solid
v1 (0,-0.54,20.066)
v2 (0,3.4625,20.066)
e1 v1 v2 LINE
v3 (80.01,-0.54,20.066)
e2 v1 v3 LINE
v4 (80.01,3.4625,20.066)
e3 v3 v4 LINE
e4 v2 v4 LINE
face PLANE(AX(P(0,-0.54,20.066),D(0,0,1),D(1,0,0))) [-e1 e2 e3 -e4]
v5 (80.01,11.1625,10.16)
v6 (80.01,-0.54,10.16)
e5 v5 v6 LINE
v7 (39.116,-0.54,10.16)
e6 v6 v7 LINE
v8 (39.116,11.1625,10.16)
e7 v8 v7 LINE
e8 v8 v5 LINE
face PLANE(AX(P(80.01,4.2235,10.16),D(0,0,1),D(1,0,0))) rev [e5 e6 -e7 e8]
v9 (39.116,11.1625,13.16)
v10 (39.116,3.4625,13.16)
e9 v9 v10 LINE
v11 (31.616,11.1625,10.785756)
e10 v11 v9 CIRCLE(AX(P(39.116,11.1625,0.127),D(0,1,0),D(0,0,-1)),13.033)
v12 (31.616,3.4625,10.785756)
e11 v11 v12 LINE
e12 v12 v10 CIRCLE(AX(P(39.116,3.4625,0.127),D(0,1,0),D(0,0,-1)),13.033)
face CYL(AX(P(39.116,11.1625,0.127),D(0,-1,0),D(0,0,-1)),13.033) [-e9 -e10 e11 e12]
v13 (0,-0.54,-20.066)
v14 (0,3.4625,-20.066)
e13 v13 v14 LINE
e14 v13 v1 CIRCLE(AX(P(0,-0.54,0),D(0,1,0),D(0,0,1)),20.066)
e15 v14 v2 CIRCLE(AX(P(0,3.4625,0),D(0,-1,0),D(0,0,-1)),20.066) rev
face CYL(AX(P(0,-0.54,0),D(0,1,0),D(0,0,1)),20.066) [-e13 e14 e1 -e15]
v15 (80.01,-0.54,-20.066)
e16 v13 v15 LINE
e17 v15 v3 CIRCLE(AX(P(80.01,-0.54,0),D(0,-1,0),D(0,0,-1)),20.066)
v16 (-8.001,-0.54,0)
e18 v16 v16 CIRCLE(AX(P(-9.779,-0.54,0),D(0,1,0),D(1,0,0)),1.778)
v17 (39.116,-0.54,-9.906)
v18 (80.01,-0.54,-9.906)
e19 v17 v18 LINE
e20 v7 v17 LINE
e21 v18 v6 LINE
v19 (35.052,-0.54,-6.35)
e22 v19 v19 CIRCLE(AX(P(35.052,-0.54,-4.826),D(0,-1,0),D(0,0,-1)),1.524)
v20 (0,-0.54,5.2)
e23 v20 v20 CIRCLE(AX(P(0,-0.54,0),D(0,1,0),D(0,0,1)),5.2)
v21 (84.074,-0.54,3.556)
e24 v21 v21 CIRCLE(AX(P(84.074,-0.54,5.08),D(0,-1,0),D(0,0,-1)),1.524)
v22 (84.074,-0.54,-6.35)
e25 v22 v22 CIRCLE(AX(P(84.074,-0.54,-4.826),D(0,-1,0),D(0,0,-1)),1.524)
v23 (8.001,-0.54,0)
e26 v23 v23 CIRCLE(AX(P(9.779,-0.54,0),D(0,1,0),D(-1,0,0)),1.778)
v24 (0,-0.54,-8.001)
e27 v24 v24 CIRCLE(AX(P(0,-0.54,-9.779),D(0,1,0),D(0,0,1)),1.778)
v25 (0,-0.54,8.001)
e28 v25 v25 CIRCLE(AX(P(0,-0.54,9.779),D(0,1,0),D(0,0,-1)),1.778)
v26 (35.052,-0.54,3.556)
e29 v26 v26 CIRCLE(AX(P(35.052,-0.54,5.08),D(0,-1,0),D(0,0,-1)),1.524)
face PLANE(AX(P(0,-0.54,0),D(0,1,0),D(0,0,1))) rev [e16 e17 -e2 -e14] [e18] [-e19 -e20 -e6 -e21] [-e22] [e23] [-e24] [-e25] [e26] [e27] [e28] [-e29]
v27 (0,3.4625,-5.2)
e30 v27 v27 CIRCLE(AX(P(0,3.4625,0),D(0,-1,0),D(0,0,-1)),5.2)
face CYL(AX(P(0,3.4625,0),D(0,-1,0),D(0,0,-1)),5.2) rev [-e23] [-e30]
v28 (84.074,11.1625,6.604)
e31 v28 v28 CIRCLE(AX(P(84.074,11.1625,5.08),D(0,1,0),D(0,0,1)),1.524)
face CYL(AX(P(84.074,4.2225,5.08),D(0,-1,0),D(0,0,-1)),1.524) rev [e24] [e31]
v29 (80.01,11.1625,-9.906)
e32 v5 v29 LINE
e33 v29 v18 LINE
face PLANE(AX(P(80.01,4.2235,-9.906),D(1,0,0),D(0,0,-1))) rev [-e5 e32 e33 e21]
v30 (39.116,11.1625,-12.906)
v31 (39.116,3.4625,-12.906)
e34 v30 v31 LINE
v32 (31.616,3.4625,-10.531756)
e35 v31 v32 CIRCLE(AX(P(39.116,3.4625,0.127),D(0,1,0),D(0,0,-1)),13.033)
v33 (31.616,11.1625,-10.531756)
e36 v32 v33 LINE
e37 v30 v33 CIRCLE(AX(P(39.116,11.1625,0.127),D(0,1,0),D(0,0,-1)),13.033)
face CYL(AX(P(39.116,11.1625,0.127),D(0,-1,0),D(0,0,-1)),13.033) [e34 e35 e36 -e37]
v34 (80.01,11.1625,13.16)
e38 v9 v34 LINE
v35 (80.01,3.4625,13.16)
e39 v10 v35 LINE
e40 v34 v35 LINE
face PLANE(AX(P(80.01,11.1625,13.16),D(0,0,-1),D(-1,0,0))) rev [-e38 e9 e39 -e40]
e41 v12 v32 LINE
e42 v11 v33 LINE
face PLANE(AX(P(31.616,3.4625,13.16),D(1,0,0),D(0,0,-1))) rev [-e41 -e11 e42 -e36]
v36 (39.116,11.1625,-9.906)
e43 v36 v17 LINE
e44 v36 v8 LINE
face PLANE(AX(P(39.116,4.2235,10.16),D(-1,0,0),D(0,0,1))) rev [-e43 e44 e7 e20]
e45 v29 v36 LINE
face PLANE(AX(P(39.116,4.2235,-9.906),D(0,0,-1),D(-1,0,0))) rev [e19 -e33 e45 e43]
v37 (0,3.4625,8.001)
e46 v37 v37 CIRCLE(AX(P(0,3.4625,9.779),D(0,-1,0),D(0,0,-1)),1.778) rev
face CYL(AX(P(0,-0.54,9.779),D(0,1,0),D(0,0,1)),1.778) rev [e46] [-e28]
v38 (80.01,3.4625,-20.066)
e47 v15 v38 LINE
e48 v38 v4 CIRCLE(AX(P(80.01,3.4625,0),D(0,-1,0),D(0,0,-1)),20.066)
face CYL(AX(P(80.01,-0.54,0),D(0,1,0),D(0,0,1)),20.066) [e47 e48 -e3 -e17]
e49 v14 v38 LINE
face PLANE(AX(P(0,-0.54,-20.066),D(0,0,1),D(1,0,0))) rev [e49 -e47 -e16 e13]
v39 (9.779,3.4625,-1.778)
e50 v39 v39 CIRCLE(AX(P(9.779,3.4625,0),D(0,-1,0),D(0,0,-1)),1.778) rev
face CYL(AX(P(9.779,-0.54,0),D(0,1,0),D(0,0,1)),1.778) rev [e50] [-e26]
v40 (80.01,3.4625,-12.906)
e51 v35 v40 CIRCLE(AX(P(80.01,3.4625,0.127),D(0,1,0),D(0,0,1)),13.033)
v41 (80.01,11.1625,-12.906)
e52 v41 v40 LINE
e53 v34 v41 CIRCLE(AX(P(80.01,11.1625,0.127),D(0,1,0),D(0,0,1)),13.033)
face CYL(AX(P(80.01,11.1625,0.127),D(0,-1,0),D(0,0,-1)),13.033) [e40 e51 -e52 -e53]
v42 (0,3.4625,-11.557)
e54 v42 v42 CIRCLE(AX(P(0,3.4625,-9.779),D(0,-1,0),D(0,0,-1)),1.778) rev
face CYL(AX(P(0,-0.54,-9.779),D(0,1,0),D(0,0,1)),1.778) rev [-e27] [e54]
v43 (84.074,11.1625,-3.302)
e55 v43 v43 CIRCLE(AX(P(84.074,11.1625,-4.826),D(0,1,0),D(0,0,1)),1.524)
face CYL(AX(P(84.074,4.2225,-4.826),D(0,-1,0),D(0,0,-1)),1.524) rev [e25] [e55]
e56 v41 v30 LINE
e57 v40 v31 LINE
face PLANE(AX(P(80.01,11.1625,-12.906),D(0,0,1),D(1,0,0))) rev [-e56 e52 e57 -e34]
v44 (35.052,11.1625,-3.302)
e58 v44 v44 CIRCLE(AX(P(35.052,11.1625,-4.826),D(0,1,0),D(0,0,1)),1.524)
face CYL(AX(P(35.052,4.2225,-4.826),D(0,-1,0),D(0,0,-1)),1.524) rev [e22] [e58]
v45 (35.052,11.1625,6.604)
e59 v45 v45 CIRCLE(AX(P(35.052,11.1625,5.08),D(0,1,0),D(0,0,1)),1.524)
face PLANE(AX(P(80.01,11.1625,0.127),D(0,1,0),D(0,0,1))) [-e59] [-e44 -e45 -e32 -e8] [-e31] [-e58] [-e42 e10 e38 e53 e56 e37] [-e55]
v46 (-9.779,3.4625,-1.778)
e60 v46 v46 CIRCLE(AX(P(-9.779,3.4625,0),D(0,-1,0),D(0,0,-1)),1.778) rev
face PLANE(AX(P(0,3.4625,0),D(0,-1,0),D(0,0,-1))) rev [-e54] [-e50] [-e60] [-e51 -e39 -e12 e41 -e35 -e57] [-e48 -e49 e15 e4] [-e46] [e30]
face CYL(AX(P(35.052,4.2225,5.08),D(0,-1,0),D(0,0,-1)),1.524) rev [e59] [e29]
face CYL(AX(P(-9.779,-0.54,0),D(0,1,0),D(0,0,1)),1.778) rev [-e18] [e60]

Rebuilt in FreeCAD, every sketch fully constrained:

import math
import FreeCAD as App
import Part
import Sketcher
Q = App.Units.Quantity

doc = App.newDocument("Part")
body = doc.addObject("PartDesign::Body", "Body")

# Sketch on XZ plane
sketch1 = doc.addObject("Sketcher::SketchObject", "Sketch")
body.addObject(sketch1)
sketch1.AttachmentSupport = (doc.XZ_Plane, [""])
sketch1.MapMode = "FlatFace"
sketch1.addGeometry(Part.LineSegment(App.Vector(-2.467436, -13.402194, 0), App.Vector(-4, -4, 0)), False)
sketch1.addGeometry(Part.LineSegment(App.Vector(-4, -4, 0), App.Vector(-12.448473, -2.459446, 0)), False)
sketch1.addGeometry(Part.ArcOfCircle(Part.Circle(App.Vector(-12, 0, 0), App.Vector(0, 0, 1), 2.5), math.radians(100.334179), math.radians(259.665821)), False)
sketch1.addGeometry(Part.LineSegment(App.Vector(-12.448473, 2.459446, 0), App.Vector(-4, 4, 0)), False)
sketch1.addGeometry(Part.LineSegment(App.Vector(-4, 4, 0), App.Vector(-2.467436, 13.402194, 0)), False)
sketch1.addGeometry(Part.ArcOfCircle(Part.Circle(App.Vector(0, 13, 0), App.Vector(0, 0, 1), 2.5), math.radians(9.257833), math.radians(170.742167)), False)
sketch1.addGeometry(Part.LineSegment(App.Vector(2.467436, 13.402194, 0), App.Vector(4, 4, 0)), False)
sketch1.addGeometry(Part.LineSegment(App.Vector(4, 4, 0), App.Vector(12.448473, 2.459446, 0)), False)
sketch1.addGeometry(Part.ArcOfCircle(Part.Circle(App.Vector(12, 0, 0), App.Vector(0, 0, 1), 2.5), math.radians(-79.665821), math.radians(79.665821)), False)
sketch1.addGeometry(Part.LineSegment(App.Vector(12.448473, -2.459446, 0), App.Vector(4, -4, 0)), False)
sketch1.addGeometry(Part.LineSegment(App.Vector(4, -4, 0), App.Vector(2.467436, -13.402194, 0)), False)
sketch1.addGeometry(Part.ArcOfCircle(Part.Circle(App.Vector(0, -13, 0), App.Vector(0, 0, 1), 2.5), math.radians(-170.742167), math.radians(-9.257833)), False)
sketch1.addGeometry(Part.Circle(App.Vector(0, 12, 0), App.Vector(0, 0, 1), 0.5), False)
sketch1.addGeometry(Part.Circle(App.Vector(0, 9.5, 0), App.Vector(0, 0, 1), 0.5), False)
sketch1.addGeometry(Part.Circle(App.Vector(0, 7.5, 0), App.Vector(0, 0, 1), 0.5), False)
sketch1.addGeometry(Part.Circle(App.Vector(12, 0, 0), App.Vector(0, 0, 1), 0.5), False)
sketch1.addGeometry(Part.Circle(App.Vector(9.5, 0, 0), App.Vector(0, 0, 1), 0.5), False)
sketch1.addGeometry(Part.Circle(App.Vector(7.5, 0, 0), App.Vector(0, 0, 1), 0.5), False)
sketch1.addGeometry(Part.Circle(App.Vector(0, 0, 0), App.Vector(0, 0, 1), 1.375), False)
sketch1.addGeometry(Part.Circle(App.Vector(-7.5, 0, 0), App.Vector(0, 0, 1), 0.5), False)
sketch1.addGeometry(Part.Circle(App.Vector(-9.5, 0, 0), App.Vector(0, 0, 1), 0.5), False)
sketch1.addGeometry(Part.Circle(App.Vector(-12, 0, 0), App.Vector(0, 0, 1), 0.5), False)
sketch1.addGeometry(Part.Circle(App.Vector(0, -7.5, 0), App.Vector(0, 0, 1), 0.5), False)
sketch1.addGeometry(Part.Circle(App.Vector(0, -9.5, 0), App.Vector(0, 0, 1), 0.5), False)
sketch1.addGeometry(Part.Circle(App.Vector(0, -12, 0), App.Vector(0, 0, 1), 0.5), False)
sketch1.addConstraint(Sketcher.Constraint("Coincident", 0, 2, 1, 1))
sketch1.addConstraint(Sketcher.Constraint("Tangent", 1, 2, 2, 2))
sketch1.addConstraint(Sketcher.Constraint("Tangent", 2, 1, 3, 1))
sketch1.addConstraint(Sketcher.Constraint("Coincident", 3, 2, 4, 1))
sketch1.addConstraint(Sketcher.Constraint("Tangent", 4, 2, 5, 2))
sketch1.addConstraint(Sketcher.Constraint("Tangent", 5, 1, 6, 1))
sketch1.addConstraint(Sketcher.Constraint("Coincident", 6, 2, 7, 1))
sketch1.addConstraint(Sketcher.Constraint("Tangent", 7, 2, 8, 2))
sketch1.addConstraint(Sketcher.Constraint("Tangent", 8, 1, 9, 1))
sketch1.addConstraint(Sketcher.Constraint("Coincident", 9, 2, 10, 1))
sketch1.addConstraint(Sketcher.Constraint("Tangent", 10, 2, 11, 2))
sketch1.addConstraint(Sketcher.Constraint("Tangent", 11, 1, 0, 1))
sketch1.addConstraint(Sketcher.Constraint("Coincident", 18, 3, -1, 1))
sketch1.addConstraint(Sketcher.Constraint("Coincident", 15, 3, 8, 3))
sketch1.addConstraint(Sketcher.Constraint("Coincident", 21, 3, 2, 3))
sketch1.addConstraint(Sketcher.Constraint("Equal", 2, 5))
sketch1.addConstraint(Sketcher.Constraint("Equal", 5, 8))
sketch1.addConstraint(Sketcher.Constraint("Equal", 8, 11))
sketch1.addConstraint(Sketcher.Constraint("Equal", 12, 13))
sketch1.addConstraint(Sketcher.Constraint("Equal", 13, 14))
sketch1.addConstraint(Sketcher.Constraint("Equal", 14, 15))
sketch1.addConstraint(Sketcher.Constraint("Equal", 15, 16))
sketch1.addConstraint(Sketcher.Constraint("Equal", 16, 17))
sketch1.addConstraint(Sketcher.Constraint("Equal", 17, 19))
sketch1.addConstraint(Sketcher.Constraint("Equal", 19, 20))
sketch1.addConstraint(Sketcher.Constraint("Equal", 20, 21))
sketch1.addConstraint(Sketcher.Constraint("Equal", 21, 22))
sketch1.addConstraint(Sketcher.Constraint("Equal", 22, 23))
sketch1.addConstraint(Sketcher.Constraint("Equal", 23, 24))
sketch1.addConstraint(Sketcher.Constraint("Symmetric", 2, 3, 8, 3, -1, 1))
sketch1.addConstraint(Sketcher.Constraint("Symmetric", 5, 3, 11, 3, -1, 1))
sketch1.addConstraint(Sketcher.Constraint("Symmetric", 17, 3, 19, 3, -1, 1))
sketch1.addConstraint(Sketcher.Constraint("Symmetric", 16, 3, 20, 3, -1, 1))
sketch1.addConstraint(Sketcher.Constraint("Symmetric", 14, 3, 22, 3, -1, 1))
sketch1.addConstraint(Sketcher.Constraint("Symmetric", 13, 3, 23, 3, -1, 1))
sketch1.addConstraint(Sketcher.Constraint("Symmetric", 12, 3, 24, 3, -1, 1))
sketch1.addConstraint(Sketcher.Constraint("Symmetric", 0, 2, 6, 2, -1, 1))
sketch1.addConstraint(Sketcher.Constraint("Symmetric", 3, 2, 9, 2, -1, 1))
sketch1.addConstraint(Sketcher.Constraint("Symmetric", 4, 2, 5, 1, -2))
sketch1.addConstraint(Sketcher.Constraint("Symmetric", 2, 1, 7, 2, -2))
sketch1.addConstraint(Sketcher.Constraint("PointOnObject", 12, 3, -2))
sketch1.addConstraint(Sketcher.Constraint("PointOnObject", 13, 3, -2))
sketch1.addConstraint(Sketcher.Constraint("PointOnObject", 14, 3, -2))
sketch1.addConstraint(Sketcher.Constraint("PointOnObject", 16, 3, -1))
sketch1.addConstraint(Sketcher.Constraint("PointOnObject", 17, 3, -1))
sketch1.addConstraint(Sketcher.Constraint("Diameter", 12, Q("1 mm")))
sketch1.addConstraint(Sketcher.Constraint("Diameter", 18, Q("2.75 mm")))
sketch1.addConstraint(Sketcher.Constraint("Radius", 2, Q("2.5 mm")))
sketch1.addConstraint(Sketcher.Constraint("DistanceX", 2, 3, -1, 1, Q("12 mm")))
sketch1.addConstraint(Sketcher.Constraint("DistanceY", -1, 1, 5, 3, Q("13 mm")))
sketch1.addConstraint(Sketcher.Constraint("DistanceY", -1, 1, 12, 3, Q("12 mm")))
sketch1.addConstraint(Sketcher.Constraint("DistanceY", -1, 1, 13, 3, Q("9.5 mm")))
sketch1.addConstraint(Sketcher.Constraint("DistanceY", -1, 1, 14, 3, Q("7.5 mm")))
sketch1.addConstraint(Sketcher.Constraint("DistanceX", -1, 1, 16, 3, Q("9.5 mm")))
sketch1.addConstraint(Sketcher.Constraint("DistanceX", -1, 1, 17, 3, Q("7.5 mm")))
sketch1.addConstraint(Sketcher.Constraint("DistanceX", 0, 2, -1, 1, Q("4 mm")))
sketch1.addConstraint(Sketcher.Constraint("DistanceY", 0, 2, -1, 1, Q("4 mm")))
pad1 = doc.addObject("PartDesign::Pad", "Pad")
body.addObject(pad1)
pad1.Profile = sketch1
pad1.Length = 2
pad1.Reversed = True

# Sketch on XZ plane
sketch2 = doc.addObject("Sketcher::SketchObject", "Sketch001")
body.addObject(sketch2)
sketch2.AttachmentSupport = (doc.XZ_Plane, [""])
sketch2.MapMode = "FlatFace"
sketch2.addGeometry(Part.Circle(App.Vector(0, 0, 0), App.Vector(0, 0, 1), 4.627004), False)
sketch2.addGeometry(Part.Circle(App.Vector(0, 0, 0), App.Vector(0, 0, 1), 2.627004), False)
sketch2.addConstraint(Sketcher.Constraint("Coincident", 0, 3, -1, 1))
sketch2.addConstraint(Sketcher.Constraint("Coincident", 1, 3, -1, 1))
sketch2.addConstraint(Sketcher.Constraint("Diameter", 0, Q("9.254007 mm")))
sketch2.addConstraint(Sketcher.Constraint("Diameter", 1, Q("5.254007 mm")))
pad2 = doc.addObject("PartDesign::Pad", "Pad001")
body.addObject(pad2)
pad2.Profile = sketch2
pad2.Length = 2.5

# Sketch on XZ plane
sketch3 = doc.addObject("Sketcher::SketchObject", "Sketch002")
body.addObject(sketch3)
sketch3.AttachmentSupport = (doc.XZ_Plane, [""])
sketch3.MapMode = "FlatFace"
sketch3.AttachmentOffset = App.Placement(App.Vector(0, 0, 2.5), App.Rotation())
sketch3.addGeometry(Part.LineSegment(App.Vector(0.28282, 2.611735, 0), App.Vector(0, 3.101594, 0)), False)
sketch3.addGeometry(Part.LineSegment(App.Vector(0, 3.101594, 0), App.Vector(-0.28282, 2.611735, 0)), False)
sketch3.addGeometry(Part.ArcOfCircle(Part.Circle(App.Vector(0, 0, 0), App.Vector(0, 0, 1), 2.627004), math.radians(96.180373), math.radians(101.819627)), False)
sketch3.addGeometry(Part.LineSegment(App.Vector(-0.538093, 2.571304, 0), App.Vector(-0.958445, 2.949791, 0)), False)
sketch3.addGeometry(Part.LineSegment(App.Vector(-0.958445, 2.949791, 0), App.Vector(-1.076048, 2.396512, 0)), False)
sketch3.addGeometry(Part.ArcOfCircle(Part.Circle(App.Vector(0, 0, 0), App.Vector(0, 0, 1), 2.627003), math.radians(114.180372), math.radians(119.819628)), False)
sketch3.addGeometry(Part.LineSegment(App.Vector(-1.306333, 2.279176, 0), App.Vector(-1.823071, 2.509242, 0)), False)
sketch3.addGeometry(Part.LineSegment(App.Vector(-1.823071, 2.509242, 0), App.Vector(-1.763946, 1.946701, 0)), False)
sketch3.addGeometry(Part.ArcOfCircle(Part.Circle(App.Vector(0, 0, 0), App.Vector(0, 0, 1), 2.627004), math.radians(132.180373), math.radians(137.819627)), False)
sketch3.addGeometry(Part.LineSegment(App.Vector(-1.946701, 1.763946, 0), App.Vector(-2.509242, 1.823071, 0)), False)
sketch3.addGeometry(Part.LineSegment(App.Vector(-2.509242, 1.823071, 0), App.Vector(-2.279176, 1.306333, 0)), False)
sketch3.addGeometry(Part.ArcOfCircle(Part.Circle(App.Vector(0, 0, 0), App.Vector(0, 0, 1), 2.627003), math.radians(150.180372), math.radians(155.819628)), False)
sketch3.addGeometry(Part.LineSegment(App.Vector(-2.396512, 1.076048, 0), App.Vector(-2.949791, 0.958445, 0)), False)
sketch3.addGeometry(Part.LineSegment(App.Vector(-2.949791, 0.958445, 0), App.Vector(-2.571304, 0.538093, 0)), False)
sketch3.addGeometry(Part.ArcOfCircle(Part.Circle(App.Vector(0, 0, 0), App.Vector(0, 0, 1), 2.627004), math.radians(168.180373), math.radians(173.819627)), False)
sketch3.addGeometry(Part.LineSegment(App.Vector(-2.611735, 0.28282, 0), App.Vector(-3.101594, 0, 0)), False)
sketch3.addGeometry(Part.LineSegment(App.Vector(-3.101594, 0, 0), App.Vector(-2.611735, -0.28282, 0)), False)
sketch3.addGeometry(Part.ArcOfCircle(Part.Circle(App.Vector(0, 0, 0), App.Vector(0, 0, 1), 2.627004), math.radians(-173.819627), math.radians(-168.180373)), False)
sketch3.addGeometry(Part.LineSegment(App.Vector(-2.571304, -0.538093, 0), App.Vector(-2.949791, -0.958445, 0)), False)
sketch3.addGeometry(Part.LineSegment(App.Vector(-2.949791, -0.958445, 0), App.Vector(-2.396512, -1.076048, 0)), False)
sketch3.addGeometry(Part.ArcOfCircle(Part.Circle(App.Vector(0, 0, 0), App.Vector(0, 0, 1), 2.627003), math.radians(-155.819628), math.radians(-150.180372)), False)
sketch3.addGeometry(Part.LineSegment(App.Vector(-2.279176, -1.306333, 0), App.Vector(-2.509242, -1.823071, 0)), False)
sketch3.addGeometry(Part.LineSegment(App.Vector(-2.509242, -1.823071, 0), App.Vector(-1.946701, -1.763946, 0)), False)
sketch3.addGeometry(Part.ArcOfCircle(Part.Circle(App.Vector(0, 0, 0), App.Vector(0, 0, 1), 2.627004), math.radians(-137.819627), math.radians(-132.180373)), False)
sketch3.addGeometry(Part.LineSegment(App.Vector(-1.763946, -1.946701, 0), App.Vector(-1.823071, -2.509242, 0)), False)
sketch3.addGeometry(Part.LineSegment(App.Vector(-1.823071, -2.509242, 0), App.Vector(-1.306333, -2.279176, 0)), False)
sketch3.addGeometry(Part.ArcOfCircle(Part.Circle(App.Vector(0, 0, 0), App.Vector(0, 0, 1), 2.627003), math.radians(-119.819628), math.radians(-114.180372)), False)
sketch3.addGeometry(Part.LineSegment(App.Vector(-1.076048, -2.396512, 0), App.Vector(-0.958445, -2.949791, 0)), False)
sketch3.addGeometry(Part.LineSegment(App.Vector(-0.958445, -2.949791, 0), App.Vector(-0.538093, -2.571304, 0)), False)
sketch3.addGeometry(Part.ArcOfCircle(Part.Circle(App.Vector(0, 0, 0), App.Vector(0, 0, 1), 2.627004), math.radians(-101.819627), math.radians(-96.180373)), False)
sketch3.addGeometry(Part.LineSegment(App.Vector(-0.28282, -2.611735, 0), App.Vector(0, -3.101594, 0)), False)
sketch3.addGeometry(Part.LineSegment(App.Vector(0, -3.101594, 0), App.Vector(0.28282, -2.611735, 0)), False)
sketch3.addGeometry(Part.ArcOfCircle(Part.Circle(App.Vector(0, 0, 0), App.Vector(0, 0, 1), 2.627004), math.radians(-83.819627), math.radians(-78.180373)), False)
sketch3.addGeometry(Part.LineSegment(App.Vector(0.538093, -2.571304, 0), App.Vector(0.958445, -2.949791, 0)), False)
sketch3.addGeometry(Part.LineSegment(App.Vector(0.958445, -2.949791, 0), App.Vector(1.076048, -2.396512, 0)), False)
sketch3.addGeometry(Part.ArcOfCircle(Part.Circle(App.Vector(0, 0, 0), App.Vector(0, 0, 1), 2.627003), math.radians(-65.819628), math.radians(-60.180372)), False)
sketch3.addGeometry(Part.LineSegment(App.Vector(1.306333, -2.279176, 0), App.Vector(1.823071, -2.509242, 0)), False)
sketch3.addGeometry(Part.LineSegment(App.Vector(1.823071, -2.509242, 0), App.Vector(1.763946, -1.946701, 0)), False)
sketch3.addGeometry(Part.ArcOfCircle(Part.Circle(App.Vector(0, 0, 0), App.Vector(0, 0, 1), 2.627004), math.radians(-47.819627), math.radians(-42.180373)), False)
sketch3.addGeometry(Part.LineSegment(App.Vector(1.946701, -1.763946, 0), App.Vector(2.509242, -1.823071, 0)), False)
sketch3.addGeometry(Part.LineSegment(App.Vector(2.509242, -1.823071, 0), App.Vector(2.279176, -1.306333, 0)), False)
sketch3.addGeometry(Part.ArcOfCircle(Part.Circle(App.Vector(0, 0, 0), App.Vector(0, 0, 1), 2.627003), math.radians(-29.819628), math.radians(-24.180372)), False)
sketch3.addGeometry(Part.LineSegment(App.Vector(2.396512, -1.076048, 0), App.Vector(2.949791, -0.958445, 0)), False)
sketch3.addGeometry(Part.LineSegment(App.Vector(2.949791, -0.958445, 0), App.Vector(2.571304, -0.538093, 0)), False)
sketch3.addGeometry(Part.ArcOfCircle(Part.Circle(App.Vector(0, 0, 0), App.Vector(0, 0, 1), 2.627004), math.radians(-11.819627), math.radians(-6.180373)), False)
sketch3.addGeometry(Part.LineSegment(App.Vector(2.611735, -0.28282, 0), App.Vector(3.101594, 0, 0)), False)
sketch3.addGeometry(Part.LineSegment(App.Vector(3.101594, 0, 0), App.Vector(2.611735, 0.28282, 0)), False)
sketch3.addGeometry(Part.ArcOfCircle(Part.Circle(App.Vector(0, 0, 0), App.Vector(0, 0, 1), 2.627004), math.radians(6.180373), math.radians(11.819627)), False)
sketch3.addGeometry(Part.LineSegment(App.Vector(2.571304, 0.538093, 0), App.Vector(2.949791, 0.958445, 0)), False)
sketch3.addGeometry(Part.LineSegment(App.Vector(2.949791, 0.958445, 0), App.Vector(2.396512, 1.076048, 0)), False)
sketch3.addGeometry(Part.ArcOfCircle(Part.Circle(App.Vector(0, 0, 0), App.Vector(0, 0, 1), 2.627003), math.radians(24.180372), math.radians(29.819628)), False)
sketch3.addGeometry(Part.LineSegment(App.Vector(2.279176, 1.306333, 0), App.Vector(2.509242, 1.823071, 0)), False)
sketch3.addGeometry(Part.LineSegment(App.Vector(2.509242, 1.823071, 0), App.Vector(1.946701, 1.763946, 0)), False)
sketch3.addGeometry(Part.ArcOfCircle(Part.Circle(App.Vector(0, 0, 0), App.Vector(0, 0, 1), 2.627004), math.radians(42.180373), math.radians(47.819627)), False)
sketch3.addGeometry(Part.LineSegment(App.Vector(1.763946, 1.946701, 0), App.Vector(1.823071, 2.509242, 0)), False)
sketch3.addGeometry(Part.LineSegment(App.Vector(1.823071, 2.509242, 0), App.Vector(1.306333, 2.279176, 0)), False)
sketch3.addGeometry(Part.ArcOfCircle(Part.Circle(App.Vector(0, 0, 0), App.Vector(0, 0, 1), 2.627003), math.radians(60.180372), math.radians(65.819628)), False)
sketch3.addGeometry(Part.LineSegment(App.Vector(1.076048, 2.396512, 0), App.Vector(0.958445, 2.949791, 0)), False)
sketch3.addGeometry(Part.LineSegment(App.Vector(0.958445, 2.949791, 0), App.Vector(0.538093, 2.571304, 0)), False)
sketch3.addGeometry(Part.ArcOfCircle(Part.Circle(App.Vector(0, 0, 0), App.Vector(0, 0, 1), 2.627004), math.radians(78.180373), math.radians(83.819627)), False)
sketch3.addConstraint(Sketcher.Constraint("Coincident", 0, 2, 1, 1))
sketch3.addConstraint(Sketcher.Constraint("Coincident", 1, 2, 2, 1))
sketch3.addConstraint(Sketcher.Constraint("Coincident", 2, 2, 3, 1))
sketch3.addConstraint(Sketcher.Constraint("Coincident", 3, 2, 4, 1))
sketch3.addConstraint(Sketcher.Constraint("Coincident", 4, 2, 5, 1))
sketch3.addConstraint(Sketcher.Constraint("Coincident", 5, 2, 6, 1))
sketch3.addConstraint(Sketcher.Constraint("Coincident", 6, 2, 7, 1))
sketch3.addConstraint(Sketcher.Constraint("Coincident", 7, 2, 8, 1))
sketch3.addConstraint(Sketcher.Constraint("Coincident", 8, 2, 9, 1))
sketch3.addConstraint(Sketcher.Constraint("Coincident", 9, 2, 10, 1))
sketch3.addConstraint(Sketcher.Constraint("Coincident", 10, 2, 11, 1))
sketch3.addConstraint(Sketcher.Constraint("Coincident", 11, 2, 12, 1))
sketch3.addConstraint(Sketcher.Constraint("Coincident", 12, 2, 13, 1))
sketch3.addConstraint(Sketcher.Constraint("Coincident", 13, 2, 14, 1))
sketch3.addConstraint(Sketcher.Constraint("Coincident", 14, 2, 15, 1))
sketch3.addConstraint(Sketcher.Constraint("Coincident", 15, 2, 16, 1))
sketch3.addConstraint(Sketcher.Constraint("Coincident", 16, 2, 17, 1))
sketch3.addConstraint(Sketcher.Constraint("Coincident", 17, 2, 18, 1))
sketch3.addConstraint(Sketcher.Constraint("Coincident", 18, 2, 19, 1))
sketch3.addConstraint(Sketcher.Constraint("Coincident", 19, 2, 20, 1))
sketch3.addConstraint(Sketcher.Constraint("Coincident", 20, 2, 21, 1))
sketch3.addConstraint(Sketcher.Constraint("Coincident", 21, 2, 22, 1))
sketch3.addConstraint(Sketcher.Constraint("Coincident", 22, 2, 23, 1))
sketch3.addConstraint(Sketcher.Constraint("Coincident", 23, 2, 24, 1))
sketch3.addConstraint(Sketcher.Constraint("Coincident", 24, 2, 25, 1))
sketch3.addConstraint(Sketcher.Constraint("Coincident", 25, 2, 26, 1))
sketch3.addConstraint(Sketcher.Constraint("Coincident", 26, 2, 27, 1))
sketch3.addConstraint(Sketcher.Constraint("Coincident", 27, 2, 28, 1))
sketch3.addConstraint(Sketcher.Constraint("Coincident", 28, 2, 29, 1))
sketch3.addConstraint(Sketcher.Constraint("Coincident", 29, 2, 30, 1))
sketch3.addConstraint(Sketcher.Constraint("Coincident", 30, 2, 31, 1))
sketch3.addConstraint(Sketcher.Constraint("Coincident", 31, 2, 32, 1))
sketch3.addConstraint(Sketcher.Constraint("Coincident", 32, 2, 33, 1))
sketch3.addConstraint(Sketcher.Constraint("Coincident", 33, 2, 34, 1))
sketch3.addConstraint(Sketcher.Constraint("Coincident", 34, 2, 35, 1))
sketch3.addConstraint(Sketcher.Constraint("Coincident", 35, 2, 36, 1))
sketch3.addConstraint(Sketcher.Constraint("Coincident", 36, 2, 37, 1))
sketch3.addConstraint(Sketcher.Constraint("Coincident", 37, 2, 38, 1))
sketch3.addConstraint(Sketcher.Constraint("Coincident", 38, 2, 39, 1))
sketch3.addConstraint(Sketcher.Constraint("Coincident", 39, 2, 40, 1))
sketch3.addConstraint(Sketcher.Constraint("Coincident", 40, 2, 41, 1))
sketch3.addConstraint(Sketcher.Constraint("Coincident", 41, 2, 42, 1))
sketch3.addConstraint(Sketcher.Constraint("Coincident", 42, 2, 43, 1))
sketch3.addConstraint(Sketcher.Constraint("Coincident", 43, 2, 44, 1))
sketch3.addConstraint(Sketcher.Constraint("Coincident", 44, 2, 45, 1))
sketch3.addConstraint(Sketcher.Constraint("Coincident", 45, 2, 46, 1))
sketch3.addConstraint(Sketcher.Constraint("Coincident", 46, 2, 47, 1))
sketch3.addConstraint(Sketcher.Constraint("Coincident", 47, 2, 48, 1))
sketch3.addConstraint(Sketcher.Constraint("Coincident", 48, 2, 49, 1))
sketch3.addConstraint(Sketcher.Constraint("Coincident", 49, 2, 50, 1))
sketch3.addConstraint(Sketcher.Constraint("Coincident", 50, 2, 51, 1))
sketch3.addConstraint(Sketcher.Constraint("Coincident", 51, 2, 52, 1))
sketch3.addConstraint(Sketcher.Constraint("Coincident", 52, 2, 53, 1))
sketch3.addConstraint(Sketcher.Constraint("Coincident", 53, 2, 54, 1))
sketch3.addConstraint(Sketcher.Constraint("Coincident", 54, 2, 55, 1))
sketch3.addConstraint(Sketcher.Constraint("Coincident", 55, 2, 56, 1))
sketch3.addConstraint(Sketcher.Constraint("Coincident", 56, 2, 57, 1))
sketch3.addConstraint(Sketcher.Constraint("Coincident", 57, 2, 58, 1))
sketch3.addConstraint(Sketcher.Constraint("Coincident", 58, 2, 59, 1))
sketch3.addConstraint(Sketcher.Constraint("Coincident", 59, 2, 0, 1))
sketch3.addConstraint(Sketcher.Constraint("Coincident", 2, 3, -1, 1))
sketch3.addConstraint(Sketcher.Constraint("Coincident", 5, 3, -1, 1))
sketch3.addConstraint(Sketcher.Constraint("Coincident", 8, 3, -1, 1))
sketch3.addConstraint(Sketcher.Constraint("Coincident", 11, 3, -1, 1))
sketch3.addConstraint(Sketcher.Constraint("Coincident", 14, 3, -1, 1))
sketch3.addConstraint(Sketcher.Constraint("Coincident", 17, 3, -1, 1))
sketch3.addConstraint(Sketcher.Constraint("Coincident", 20, 3, -1, 1))
sketch3.addConstraint(Sketcher.Constraint("Coincident", 23, 3, -1, 1))
sketch3.addConstraint(Sketcher.Constraint("Coincident", 26, 3, -1, 1))
sketch3.addConstraint(Sketcher.Constraint("Coincident", 29, 3, -1, 1))
sketch3.addConstraint(Sketcher.Constraint("Coincident", 32, 3, -1, 1))
sketch3.addConstraint(Sketcher.Constraint("Coincident", 35, 3, -1, 1))
sketch3.addConstraint(Sketcher.Constraint("Coincident", 38, 3, -1, 1))
sketch3.addConstraint(Sketcher.Constraint("Coincident", 41, 3, -1, 1))
sketch3.addConstraint(Sketcher.Constraint("Coincident", 44, 3, -1, 1))
sketch3.addConstraint(Sketcher.Constraint("Coincident", 47, 3, -1, 1))
sketch3.addConstraint(Sketcher.Constraint("Coincident", 50, 3, -1, 1))
sketch3.addConstraint(Sketcher.Constraint("Coincident", 53, 3, -1, 1))
sketch3.addConstraint(Sketcher.Constraint("Coincident", 56, 3, -1, 1))
sketch3.addConstraint(Sketcher.Constraint("Coincident", 59, 3, -1, 1))
sketch3.addConstraint(Sketcher.Constraint("Equal", 2, 5))
sketch3.addConstraint(Sketcher.Constraint("Equal", 5, 8))
sketch3.addConstraint(Sketcher.Constraint("Equal", 8, 11))
sketch3.addConstraint(Sketcher.Constraint("Equal", 11, 14))
sketch3.addConstraint(Sketcher.Constraint("Equal", 14, 17))
sketch3.addConstraint(Sketcher.Constraint("Equal", 17, 20))
sketch3.addConstraint(Sketcher.Constraint("Equal", 20, 23))
sketch3.addConstraint(Sketcher.Constraint("Equal", 23, 26))
sketch3.addConstraint(Sketcher.Constraint("Equal", 26, 29))
sketch3.addConstraint(Sketcher.Constraint("Equal", 29, 32))
sketch3.addConstraint(Sketcher.Constraint("Equal", 32, 35))
sketch3.addConstraint(Sketcher.Constraint("Equal", 35, 38))
sketch3.addConstraint(Sketcher.Constraint("Equal", 38, 41))
sketch3.addConstraint(Sketcher.Constraint("Equal", 41, 44))
sketch3.addConstraint(Sketcher.Constraint("Equal", 44, 47))
sketch3.addConstraint(Sketcher.Constraint("Equal", 47, 50))
sketch3.addConstraint(Sketcher.Constraint("Equal", 50, 53))
sketch3.addConstraint(Sketcher.Constraint("Equal", 53, 56))
sketch3.addConstraint(Sketcher.Constraint("Equal", 56, 59))
sketch3.addConstraint(Sketcher.Constraint("Symmetric", 0, 2, 30, 2, -1, 1))
sketch3.addConstraint(Sketcher.Constraint("Symmetric", 3, 2, 33, 2, -1, 1))
sketch3.addConstraint(Sketcher.Constraint("Symmetric", 6, 2, 36, 2, -1, 1))
sketch3.addConstraint(Sketcher.Constraint("Symmetric", 9, 2, 39, 2, -1, 1))
sketch3.addConstraint(Sketcher.Constraint("Symmetric", 12, 2, 42, 2, -1, 1))
sketch3.addConstraint(Sketcher.Constraint("Symmetric", 15, 2, 45, 2, -1, 1))
sketch3.addConstraint(Sketcher.Constraint("Symmetric", 18, 2, 48, 2, -1, 1))
sketch3.addConstraint(Sketcher.Constraint("Symmetric", 21, 2, 51, 2, -1, 1))
sketch3.addConstraint(Sketcher.Constraint("Symmetric", 24, 2, 54, 2, -1, 1))
sketch3.addConstraint(Sketcher.Constraint("Symmetric", 27, 2, 57, 2, -1, 1))
sketch3.addConstraint(Sketcher.Constraint("Symmetric", 27, 2, 33, 2, -2))
sketch3.addConstraint(Sketcher.Constraint("Symmetric", 24, 2, 36, 2, -2))
sketch3.addConstraint(Sketcher.Constraint("Symmetric", 21, 2, 39, 2, -2))
sketch3.addConstraint(Sketcher.Constraint("Symmetric", 18, 2, 42, 2, -2))
sketch3.addConstraint(Sketcher.Constraint("PointOnObject", 0, 2, -2))
sketch3.addConstraint(Sketcher.Constraint("PointOnObject", 15, 2, -1))
sketch3.addConstraint(Sketcher.Constraint("Perpendicular", 0, 15))
sketch3.addConstraint(Sketcher.Constraint("Perpendicular", 1, 16))
sketch3.addConstraint(Sketcher.Constraint("Perpendicular", 3, 18))
sketch3.addConstraint(Sketcher.Constraint("Perpendicular", 4, 19))
sketch3.addConstraint(Sketcher.Constraint("Perpendicular", 6, 21))
sketch3.addConstraint(Sketcher.Constraint("Perpendicular", 7, 22))
sketch3.addConstraint(Sketcher.Constraint("Perpendicular", 9, 24))
sketch3.addConstraint(Sketcher.Constraint("Perpendicular", 10, 25))
sketch3.addConstraint(Sketcher.Constraint("Perpendicular", 12, 27))
sketch3.addConstraint(Sketcher.Constraint("Perpendicular", 13, 28))
sketch3.addConstraint(Sketcher.Constraint("Perpendicular", 15, 30))
sketch3.addConstraint(Sketcher.Constraint("Perpendicular", 16, 31))
sketch3.addConstraint(Sketcher.Constraint("Perpendicular", 18, 33))
sketch3.addConstraint(Sketcher.Constraint("Perpendicular", 19, 34))
sketch3.addConstraint(Sketcher.Constraint("Perpendicular", 21, 36))
sketch3.addConstraint(Sketcher.Constraint("Perpendicular", 22, 37))
sketch3.addConstraint(Sketcher.Constraint("Perpendicular", 24, 39))
sketch3.addConstraint(Sketcher.Constraint("Perpendicular", 25, 40))
sketch3.addConstraint(Sketcher.Constraint("Perpendicular", 27, 42))
sketch3.addConstraint(Sketcher.Constraint("Perpendicular", 28, 43))
sketch3.addConstraint(Sketcher.Constraint("Perpendicular", 30, 45))
sketch3.addConstraint(Sketcher.Constraint("Perpendicular", 31, 46))
sketch3.addConstraint(Sketcher.Constraint("Perpendicular", 33, 48))
sketch3.addConstraint(Sketcher.Constraint("Perpendicular", 34, 49))
sketch3.addConstraint(Sketcher.Constraint("Perpendicular", 36, 51))
sketch3.addConstraint(Sketcher.Constraint("Perpendicular", 37, 52))
sketch3.addConstraint(Sketcher.Constraint("Perpendicular", 39, 54))
sketch3.addConstraint(Sketcher.Constraint("Perpendicular", 40, 55))
sketch3.addConstraint(Sketcher.Constraint("Perpendicular", 42, 57))
sketch3.addConstraint(Sketcher.Constraint("Perpendicular", 43, 58))
sketch3.addConstraint(Sketcher.Constraint("Horizontal", 29, 2, 31, 2))
sketch3.addConstraint(Sketcher.Constraint("Horizontal", 28, 2, 32, 2))
sketch3.addConstraint(Sketcher.Constraint("Horizontal", 26, 2, 34, 2))
sketch3.addConstraint(Sketcher.Constraint("Horizontal", 25, 2, 35, 2))
sketch3.addConstraint(Sketcher.Constraint("Horizontal", 23, 2, 37, 2))
sketch3.addConstraint(Sketcher.Constraint("Equal", 1, 3))
sketch3.addConstraint(Sketcher.Constraint("Equal", 3, 4))
sketch3.addConstraint(Sketcher.Constraint("Equal", 4, 6))
sketch3.addConstraint(Sketcher.Constraint("Equal", 6, 7))
sketch3.addConstraint(Sketcher.Constraint("Equal", 7, 9))
sketch3.addConstraint(Sketcher.Constraint("Equal", 9, 10))
sketch3.addConstraint(Sketcher.Constraint("Equal", 10, 12))
sketch3.addConstraint(Sketcher.Constraint("Equal", 12, 13))
sketch3.addConstraint(Sketcher.Constraint("Equal", 13, 15))
sketch3.addConstraint(Sketcher.Constraint("Angle", 0, Q("120 deg")))
sketch3.addConstraint(Sketcher.Constraint("Angle", 3, Q("138 deg")))
sketch3.addConstraint(Sketcher.Constraint("Angle", 4, Q("-102 deg")))
sketch3.addConstraint(Sketcher.Constraint("Angle", 6, Q("156 deg")))
sketch3.addConstraint(Sketcher.Constraint("Angle", 7, Q("-84 deg")))
sketch3.addConstraint(Sketcher.Constraint("Radius", 2, Q("2.627004 mm")))
sketch3.addConstraint(Sketcher.Constraint("DistanceY", -1, 1, 7, 2, Q("1.946701 mm")))
pocket1 = doc.addObject("PartDesign::Pocket", "Pocket")
body.addObject(pocket1)
pocket1.Profile = sketch3
pocket1.Length = 2.5

# Sketch on XZ plane
sketch4 = doc.addObject("Sketcher::SketchObject", "Sketch003")
body.addObject(sketch4)
sketch4.AttachmentSupport = (doc.XZ_Plane, [""])
sketch4.MapMode = "FlatFace"
sketch4.AttachmentOffset = App.Placement(App.Vector(0, 0, -2), App.Rotation())
sketch4.addGeometry(Part.Circle(App.Vector(0, 0, 0), App.Vector(0, 0, 1), 20.066), False)
sketch4.addGeometry(Part.Circle(App.Vector(0, 0, 0), App.Vector(0, 0, 1), 3.75), False)
sketch4.addConstraint(Sketcher.Constraint("Coincident", 0, 3, -1, 1))
sketch4.addConstraint(Sketcher.Constraint("Coincident", 1, 3, -1, 1))
sketch4.addConstraint(Sketcher.Constraint("Diameter", 0, Q("1.58 in")))
sketch4.addConstraint(Sketcher.Constraint("Diameter", 1, Q("7.5 mm")))
pad3 = doc.addObject("PartDesign::Pad", "Pad002")
body.addObject(pad3)
pad3.Profile = sketch4
pad3.Length = Q("0.1 in")

# Sketch on XZ plane
sketch5 = doc.addObject("Sketcher::SketchObject", "Sketch004")
body.addObject(sketch5)
sketch5.AttachmentSupport = (doc.XZ_Plane, [""])
sketch5.MapMode = "FlatFace"
sketch5.AttachmentOffset = App.Placement(App.Vector(0, 0, -2), App.Rotation())
sketch5.addGeometry(Part.Circle(App.Vector(0, -9.779, 0), App.Vector(0, 0, 1), 1.778), False)
sketch5.addConstraint(Sketcher.Constraint("PointOnObject", 0, 3, -2))
sketch5.addConstraint(Sketcher.Constraint("Diameter", 0, Q("0.14 in")))
sketch5.addConstraint(Sketcher.Constraint("DistanceY", 0, 3, -1, 1, Q("0.385 in")))
pocket2 = doc.addObject("PartDesign::Pocket", "Pocket001")
body.addObject(pocket2)
pocket2.Profile = sketch5
pocket2.Length = Q("0.1 in")
pocket2.Reversed = True
doc.recompute()

polarpattern = doc.addObject("PartDesign::PolarPattern", "PolarPattern")
body.addObject(polarpattern)
polarpattern.Originals = [pocket2]
polarpattern.Axis = (doc.Y_Axis, [""])
polarpattern.Angle = 360
polarpattern.Occurrences = 4
body.Tip = polarpattern

# Sketch on XZ plane
sketch6 = doc.addObject("Sketcher::SketchObject", "Sketch005")
body.addObject(sketch6)
sketch6.AttachmentSupport = (doc.XZ_Plane, [""])
sketch6.MapMode = "FlatFace"
sketch6.AttachmentOffset = App.Placement(App.Vector(0, 0, -2), App.Rotation())
sketch6.addGeometry(Part.LineSegment(App.Vector(80.01, -20.066, 0), App.Vector(0, -20.066, 0)), False)
sketch6.addGeometry(Part.ArcOfCircle(Part.Circle(App.Vector(0, 0, 0), App.Vector(0, 0, 1), 20.066), math.radians(-90), math.radians(90)), False)
sketch6.addGeometry(Part.LineSegment(App.Vector(0, 20.066, 0), App.Vector(80.01, 20.066, 0)), False)
sketch6.addGeometry(Part.ArcOfCircle(Part.Circle(App.Vector(80.01, 0, 0), App.Vector(0, 0, 1), 20.066), math.radians(-90), math.radians(90)), False)
sketch6.addConstraint(Sketcher.Constraint("Tangent", 0, 2, 1, 1))
sketch6.addConstraint(Sketcher.Constraint("Tangent", 1, 2, 2, 1))
sketch6.addConstraint(Sketcher.Constraint("Tangent", 2, 2, 3, 2))
sketch6.addConstraint(Sketcher.Constraint("Tangent", 3, 1, 0, 1))
sketch6.addConstraint(Sketcher.Constraint("Horizontal", 0))
sketch6.addConstraint(Sketcher.Constraint("Horizontal", 2))
sketch6.addConstraint(Sketcher.Constraint("Coincident", 1, 3, -1, 1))
sketch6.addConstraint(Sketcher.Constraint("Radius", 1, Q("0.79 in")))
sketch6.addConstraint(Sketcher.Constraint("DistanceX", 0, 2, 0, 1, Q("3.15 in")))
pad4 = doc.addObject("PartDesign::Pad", "Pad003")
body.addObject(pad4)
pad4.Profile = sketch6
pad4.Type = "TwoLengths"
pad4.Length = Q("0.0875 in")
pad4.Length2 = Q("0.1 in")
pad4.Reversed = True

# Sketch on XZ plane
sketch7 = doc.addObject("Sketcher::SketchObject", "Sketch006")
body.addObject(sketch7)
sketch7.AttachmentSupport = (doc.XZ_Plane, [""])
sketch7.MapMode = "FlatFace"
sketch7.AttachmentOffset = App.Placement(App.Vector(0, 0, -2), App.Rotation())
sketch7.addGeometry(Part.Circle(App.Vector(0, 0, 0), App.Vector(0, 0, 1), 20.066), False)
sketch7.addGeometry(Part.Circle(App.Vector(0, 9.779, 0), App.Vector(0, 0, 1), 1.778), False)
sketch7.addGeometry(Part.Circle(App.Vector(-9.779, 0, 0), App.Vector(0, 0, 1), 1.778), False)
sketch7.addGeometry(Part.Circle(App.Vector(0, 0, 0), App.Vector(0, 0, 1), 1.375), False)
sketch7.addGeometry(Part.Circle(App.Vector(9.779, 0, 0), App.Vector(0, 0, 1), 1.778), False)
sketch7.addGeometry(Part.Circle(App.Vector(0, -9.779, 0), App.Vector(0, 0, 1), 1.778), False)
sketch7.addConstraint(Sketcher.Constraint("Coincident", 0, 3, -1, 1))
sketch7.addConstraint(Sketcher.Constraint("Coincident", 3, 3, -1, 1))
sketch7.addConstraint(Sketcher.Constraint("Equal", 1, 2))
sketch7.addConstraint(Sketcher.Constraint("Equal", 2, 4))
sketch7.addConstraint(Sketcher.Constraint("Equal", 4, 5))
sketch7.addConstraint(Sketcher.Constraint("Symmetric", 2, 3, 4, 3, -1, 1))
sketch7.addConstraint(Sketcher.Constraint("Symmetric", 1, 3, 5, 3, -1, 1))
sketch7.addConstraint(Sketcher.Constraint("PointOnObject", 1, 3, -2))
sketch7.addConstraint(Sketcher.Constraint("PointOnObject", 2, 3, -1))
sketch7.addConstraint(Sketcher.Constraint("Diameter", 0, Q("1.58 in")))
sketch7.addConstraint(Sketcher.Constraint("Diameter", 1, Q("0.14 in")))
sketch7.addConstraint(Sketcher.Constraint("Diameter", 3, Q("2.75 mm")))
sketch7.addConstraint(Sketcher.Constraint("DistanceX", 2, 3, 4, 3, Q("0.77 in")))
sketch7.addConstraint(Sketcher.Constraint("DistanceY", 5, 3, 1, 3, Q("0.77 in")))
pad5 = doc.addObject("PartDesign::Pad", "Pad004")
body.addObject(pad5)
pad5.Profile = sketch7
pad5.Length = Q("0.0875 in")
pad5.Reversed = True

# Sketch on XZ plane
sketch8 = doc.addObject("Sketcher::SketchObject", "Sketch007")
body.addObject(sketch8)
sketch8.AttachmentSupport = (doc.XZ_Plane, [""])
sketch8.MapMode = "FlatFace"
sketch8.AttachmentOffset = App.Placement(App.Vector(0, 0, 0.54), App.Rotation())
sketch8.addGeometry(Part.LineSegment(App.Vector(39.116, 10.16, 0), App.Vector(39.116, -9.906, 0)), False)
sketch8.addGeometry(Part.LineSegment(App.Vector(39.116, -9.906, 0), App.Vector(80.01, -9.906, 0)), False)
sketch8.addGeometry(Part.LineSegment(App.Vector(80.01, -9.906, 0), App.Vector(80.01, 10.16, 0)), False)
sketch8.addGeometry(Part.LineSegment(App.Vector(80.01, 10.16, 0), App.Vector(39.116, 10.16, 0)), False)
sketch8.addConstraint(Sketcher.Constraint("Coincident", 0, 2, 1, 1))
sketch8.addConstraint(Sketcher.Constraint("Coincident", 1, 2, 2, 1))
sketch8.addConstraint(Sketcher.Constraint("Coincident", 2, 2, 3, 1))
sketch8.addConstraint(Sketcher.Constraint("Coincident", 3, 2, 0, 1))
sketch8.addConstraint(Sketcher.Constraint("Vertical", 0))
sketch8.addConstraint(Sketcher.Constraint("Horizontal", 1))
sketch8.addConstraint(Sketcher.Constraint("Vertical", 2))
sketch8.addConstraint(Sketcher.Constraint("Horizontal", 3))
sketch8.addConstraint(Sketcher.Constraint("DistanceX", 1, 1, 1, 2, Q("1.61 in")))
sketch8.addConstraint(Sketcher.Constraint("DistanceY", 0, 2, 0, 1, Q("0.79 in")))
sketch8.addConstraint(Sketcher.Constraint("DistanceY", -1, 1, 2, 2, Q("0.4 in")))
sketch8.addConstraint(Sketcher.Constraint("DistanceX", -1, 1, 0, 2, Q("1.54 in")))
pocket3 = doc.addObject("PartDesign::Pocket", "Pocket002")
body.addObject(pocket3)
pocket3.Profile = sketch8
pocket3.Type = "UpToFirst"

# Sketch on XZ plane
sketch9 = doc.addObject("Sketcher::SketchObject", "Sketch008")
body.addObject(sketch9)
sketch9.AttachmentSupport = (doc.XZ_Plane, [""])
sketch9.MapMode = "FlatFace"
sketch9.AttachmentOffset = App.Placement(App.Vector(0, 0, 0.54), App.Rotation())
sketch9.addGeometry(Part.Circle(App.Vector(35.052, 5.08, 0), App.Vector(0, 0, 1), 1.524), False)
sketch9.addGeometry(Part.Circle(App.Vector(35.052, -4.826, 0), App.Vector(0, 0, 1), 1.524), False)
sketch9.addGeometry(Part.Circle(App.Vector(84.074, 5.08, 0), App.Vector(0, 0, 1), 1.524), False)
sketch9.addGeometry(Part.Circle(App.Vector(84.074, -4.826, 0), App.Vector(0, 0, 1), 1.524), False)
sketch9.addConstraint(Sketcher.Constraint("Equal", 0, 1))
sketch9.addConstraint(Sketcher.Constraint("Equal", 1, 2))
sketch9.addConstraint(Sketcher.Constraint("Equal", 2, 3))
sketch9.addConstraint(Sketcher.Constraint("Horizontal", 0, 3, 2, 3))
sketch9.addConstraint(Sketcher.Constraint("Horizontal", 1, 3, 3, 3))
sketch9.addConstraint(Sketcher.Constraint("Vertical", 0, 3, 1, 3))
sketch9.addConstraint(Sketcher.Constraint("Vertical", 2, 3, 3, 3))
sketch9.addConstraint(Sketcher.Constraint("Diameter", 0, Q("0.12 in")))
sketch9.addConstraint(Sketcher.Constraint("DistanceY", -1, 1, 0, 3, Q("0.2 in")))
sketch9.addConstraint(Sketcher.Constraint("DistanceX", -1, 1, 0, 3, Q("1.38 in")))
sketch9.addConstraint(Sketcher.Constraint("DistanceY", 1, 3, -1, 1, Q("0.19 in")))
sketch9.addConstraint(Sketcher.Constraint("DistanceX", -1, 1, 2, 3, Q("3.31 in")))
pocket4 = doc.addObject("PartDesign::Pocket", "Pocket003")
body.addObject(pocket4)
pocket4.Profile = sketch9
pocket4.Type = "ThroughAll"

# Sketch on XZ plane
sketch10 = doc.addObject("Sketcher::SketchObject", "Sketch009")
body.addObject(sketch10)
sketch10.AttachmentSupport = (doc.XZ_Plane, [""])
sketch10.MapMode = "FlatFace"
sketch10.AttachmentOffset = App.Placement(App.Vector(0, 0, -4.2225), App.Rotation())
sketch10.addGeometry(Part.LineSegment(App.Vector(-24.041357, -44.381797, 0), App.Vector(-24.041357, 40.124749, 0)), False)
sketch10.addGeometry(Part.LineSegment(App.Vector(-24.041357, 40.124749, 0), App.Vector(105.766452, 40.124749, 0)), False)
sketch10.addGeometry(Part.LineSegment(App.Vector(105.766452, 40.124749, 0), App.Vector(105.766452, -44.381797, 0)), False)
sketch10.addGeometry(Part.LineSegment(App.Vector(105.766452, -44.381797, 0), App.Vector(-24.041357, -44.381797, 0)), False)
sketch10.addConstraint(Sketcher.Constraint("Coincident", 0, 2, 1, 1))
sketch10.addConstraint(Sketcher.Constraint("Coincident", 1, 2, 2, 1))
sketch10.addConstraint(Sketcher.Constraint("Coincident", 2, 2, 3, 1))
sketch10.addConstraint(Sketcher.Constraint("Coincident", 3, 2, 0, 1))
sketch10.addConstraint(Sketcher.Constraint("Vertical", 0))
sketch10.addConstraint(Sketcher.Constraint("Horizontal", 1))
sketch10.addConstraint(Sketcher.Constraint("Vertical", 2))
sketch10.addConstraint(Sketcher.Constraint("Horizontal", 3))
sketch10.addConstraint(Sketcher.Constraint("DistanceX", 1, 1, 1, 2, Q("129.807809 mm")))
sketch10.addConstraint(Sketcher.Constraint("DistanceY", 0, 1, 0, 2, Q("84.506546 mm")))
sketch10.addConstraint(Sketcher.Constraint("DistanceY", -1, 1, 0, 2, Q("40.124749 mm")))
sketch10.addConstraint(Sketcher.Constraint("DistanceX", 0, 2, -1, 1, Q("24.041357 mm")))
pocket5 = doc.addObject("PartDesign::Pocket", "Pocket004")
body.addObject(pocket5)
pocket5.Profile = sketch10
pocket5.Length = 0.76
pocket5.Reversed = True

# Sketch on XZ plane
sketch11 = doc.addObject("Sketcher::SketchObject", "Sketch010")
body.addObject(sketch11)
sketch11.AttachmentSupport = (doc.XZ_Plane, [""])
sketch11.MapMode = "FlatFace"
sketch11.AttachmentOffset = App.Placement(App.Vector(0, 0, 2.5), App.Rotation())
sketch11.addGeometry(Part.Circle(App.Vector(0, 0, 0), App.Vector(0, 0, 1), 5.2), False)
sketch11.addConstraint(Sketcher.Constraint("Coincident", 0, 3, -1, 1))
sketch11.addConstraint(Sketcher.Constraint("Diameter", 0, Q("10.4 mm")))
pocket6 = doc.addObject("PartDesign::Pocket", "Pocket005")
body.addObject(pocket6)
pocket6.Profile = sketch11
pocket6.Type = "ThroughAll"

# Sketch on XZ plane
sketch12 = doc.addObject("Sketcher::SketchObject", "Sketch011")
body.addObject(sketch12)
sketch12.AttachmentSupport = (doc.XZ_Plane, [""])
sketch12.MapMode = "FlatFace"
sketch12.AttachmentOffset = App.Placement(App.Vector(0, 0, -3.4625), App.Rotation())
sketch12.addGeometry(Part.LineSegment(App.Vector(39.116, 13.16, 0), App.Vector(80.01, 13.16, 0)), False)
sketch12.addGeometry(Part.ArcOfCircle(Part.Circle(App.Vector(80.01, 0.127, 0), App.Vector(0, 0, 1), 13.033), math.radians(-90), math.radians(90)), False)
sketch12.addGeometry(Part.LineSegment(App.Vector(80.01, -12.906, 0), App.Vector(39.116, -12.906, 0)), False)
sketch12.addGeometry(Part.ArcOfCircle(Part.Circle(App.Vector(39.116, 0.127, 0), App.Vector(0, 0, 1), 13.033), math.radians(90), math.radians(270)), False)
sketch12.addGeometry(Part.Circle(App.Vector(84.074, 5.08, 0), App.Vector(0, 0, 1), 1.524), False)
sketch12.addGeometry(Part.Circle(App.Vector(35.052, 5.08, 0), App.Vector(0, 0, 1), 1.524), False)
sketch12.addGeometry(Part.Circle(App.Vector(84.074, -4.826, 0), App.Vector(0, 0, 1), 1.524), False)
sketch12.addGeometry(Part.LineSegment(App.Vector(39.116, 10.16, 0), App.Vector(39.116, -9.906, 0)), False)
sketch12.addGeometry(Part.LineSegment(App.Vector(39.116, -9.906, 0), App.Vector(80.01, -9.906, 0)), False)
sketch12.addGeometry(Part.LineSegment(App.Vector(80.01, -9.906, 0), App.Vector(80.01, 10.16, 0)), False)
sketch12.addGeometry(Part.LineSegment(App.Vector(80.01, 10.16, 0), App.Vector(39.116, 10.16, 0)), False)
sketch12.addGeometry(Part.Circle(App.Vector(35.052, -4.826, 0), App.Vector(0, 0, 1), 1.524), False)
sketch12.addConstraint(Sketcher.Constraint("Tangent", 0, 2, 1, 2))
sketch12.addConstraint(Sketcher.Constraint("Tangent", 1, 1, 2, 1))
sketch12.addConstraint(Sketcher.Constraint("Tangent", 2, 2, 3, 2))
sketch12.addConstraint(Sketcher.Constraint("Tangent", 3, 1, 0, 1))
sketch12.addConstraint(Sketcher.Constraint("Coincident", 7, 2, 8, 1))
sketch12.addConstraint(Sketcher.Constraint("Coincident", 8, 2, 9, 1))
sketch12.addConstraint(Sketcher.Constraint("Coincident", 9, 2, 10, 1))
sketch12.addConstraint(Sketcher.Constraint("Coincident", 10, 2, 7, 1))
sketch12.addConstraint(Sketcher.Constraint("Horizontal", 0))
sketch12.addConstraint(Sketcher.Constraint("Horizontal", 2))
sketch12.addConstraint(Sketcher.Constraint("Vertical", 7))
sketch12.addConstraint(Sketcher.Constraint("Horizontal", 8))
sketch12.addConstraint(Sketcher.Constraint("Vertical", 9))
sketch12.addConstraint(Sketcher.Constraint("Horizontal", 10))
sketch12.addConstraint(Sketcher.Constraint("Equal", 4, 5))
sketch12.addConstraint(Sketcher.Constraint("Equal", 5, 6))
sketch12.addConstraint(Sketcher.Constraint("Equal", 6, 11))
sketch12.addConstraint(Sketcher.Constraint("Horizontal", 4, 3, 5, 3))
sketch12.addConstraint(Sketcher.Constraint("Horizontal", 6, 3, 11, 3))
sketch12.addConstraint(Sketcher.Constraint("Vertical", 4, 3, 6, 3))
sketch12.addConstraint(Sketcher.Constraint("Vertical", 5, 3, 11, 3))
sketch12.addConstraint(Sketcher.Constraint("Vertical", 3, 1, 7, 2))
sketch12.addConstraint(Sketcher.Constraint("Vertical", 1, 1, 8, 2))
sketch12.addConstraint(Sketcher.Constraint("Diameter", 4, Q("0.12 in")))
sketch12.addConstraint(Sketcher.Constraint("DistanceX", 0, 1, 0, 2, Q("1.61 in")))
sketch12.addConstraint(Sketcher.Constraint("DistanceY", 7, 2, 7, 1, Q("0.79 in")))
sketch12.addConstraint(Sketcher.Constraint("DistanceY", -1, 1, 4, 3, Q("0.2 in")))
sketch12.addConstraint(Sketcher.Constraint("DistanceY", -1, 1, 9, 2, Q("0.4 in")))
sketch12.addConstraint(Sketcher.Constraint("DistanceY", 7, 2, 11, 3, Q("0.2 in")))
sketch12.addConstraint(Sketcher.Constraint("DistanceX", -1, 1, 1, 3, Q("3.15 in")))
sketch12.addConstraint(Sketcher.Constraint("DistanceX", -1, 1, 4, 3, Q("3.31 in")))
sketch12.addConstraint(Sketcher.Constraint("DistanceX", -1, 1, 5, 3, Q("1.38 in")))
sketch12.addConstraint(Sketcher.Constraint("Radius", 1, Q("13.033 mm")))
sketch12.addConstraint(Sketcher.Constraint("DistanceY", -1, 1, 1, 3, Q("0.005 in")))
pad6 = doc.addObject("PartDesign::Pad", "Pad005")
body.addObject(pad6)
pad6.Profile = sketch12
pad6.Length = 7.7
pad6.Reversed = True

# Sketch on XZ plane
sketch13 = doc.addObject("Sketcher::SketchObject", "Sketch012")
body.addObject(sketch13)
sketch13.AttachmentSupport = (doc.XZ_Plane, [""])
sketch13.MapMode = "FlatFace"
sketch13.AttachmentOffset = App.Placement(App.Vector(0, 0, -11.1625), App.Rotation())
sketch13.addGeometry(Part.LineSegment(App.Vector(24.163391, -12.906, 0), App.Vector(24.163391, 13.16, 0)), False)
sketch13.addGeometry(Part.LineSegment(App.Vector(24.163391, 13.16, 0), App.Vector(31.616, 13.16, 0)), False)
sketch13.addGeometry(Part.LineSegment(App.Vector(31.616, 13.16, 0), App.Vector(31.616, -12.906, 0)), False)
sketch13.addGeometry(Part.LineSegment(App.Vector(31.616, -12.906, 0), App.Vector(24.163391, -12.906, 0)), False)
sketch13.addConstraint(Sketcher.Constraint("Coincident", 0, 2, 1, 1))
sketch13.addConstraint(Sketcher.Constraint("Coincident", 1, 2, 2, 1))
sketch13.addConstraint(Sketcher.Constraint("Coincident", 2, 2, 3, 1))
sketch13.addConstraint(Sketcher.Constraint("Coincident", 3, 2, 0, 1))
sketch13.addConstraint(Sketcher.Constraint("Vertical", 0))
sketch13.addConstraint(Sketcher.Constraint("Horizontal", 1))
sketch13.addConstraint(Sketcher.Constraint("Vertical", 2))
sketch13.addConstraint(Sketcher.Constraint("Horizontal", 3))
sketch13.addConstraint(Sketcher.Constraint("DistanceY", 0, 1, 0, 2, Q("26.066 mm")))
sketch13.addConstraint(Sketcher.Constraint("DistanceX", 1, 1, 1, 2, Q("7.452609 mm")))
sketch13.addConstraint(Sketcher.Constraint("DistanceY", -1, 1, 0, 2, Q("13.16 mm")))
sketch13.addConstraint(Sketcher.Constraint("DistanceX", -1, 1, 1, 2, Q("31.616 mm")))
pocket7 = doc.addObject("PartDesign::Pocket", "Pocket006")
body.addObject(pocket7)
pocket7.Profile = sketch13
pocket7.Length = 7.7
pocket7.Reversed = True

doc.recompute()
